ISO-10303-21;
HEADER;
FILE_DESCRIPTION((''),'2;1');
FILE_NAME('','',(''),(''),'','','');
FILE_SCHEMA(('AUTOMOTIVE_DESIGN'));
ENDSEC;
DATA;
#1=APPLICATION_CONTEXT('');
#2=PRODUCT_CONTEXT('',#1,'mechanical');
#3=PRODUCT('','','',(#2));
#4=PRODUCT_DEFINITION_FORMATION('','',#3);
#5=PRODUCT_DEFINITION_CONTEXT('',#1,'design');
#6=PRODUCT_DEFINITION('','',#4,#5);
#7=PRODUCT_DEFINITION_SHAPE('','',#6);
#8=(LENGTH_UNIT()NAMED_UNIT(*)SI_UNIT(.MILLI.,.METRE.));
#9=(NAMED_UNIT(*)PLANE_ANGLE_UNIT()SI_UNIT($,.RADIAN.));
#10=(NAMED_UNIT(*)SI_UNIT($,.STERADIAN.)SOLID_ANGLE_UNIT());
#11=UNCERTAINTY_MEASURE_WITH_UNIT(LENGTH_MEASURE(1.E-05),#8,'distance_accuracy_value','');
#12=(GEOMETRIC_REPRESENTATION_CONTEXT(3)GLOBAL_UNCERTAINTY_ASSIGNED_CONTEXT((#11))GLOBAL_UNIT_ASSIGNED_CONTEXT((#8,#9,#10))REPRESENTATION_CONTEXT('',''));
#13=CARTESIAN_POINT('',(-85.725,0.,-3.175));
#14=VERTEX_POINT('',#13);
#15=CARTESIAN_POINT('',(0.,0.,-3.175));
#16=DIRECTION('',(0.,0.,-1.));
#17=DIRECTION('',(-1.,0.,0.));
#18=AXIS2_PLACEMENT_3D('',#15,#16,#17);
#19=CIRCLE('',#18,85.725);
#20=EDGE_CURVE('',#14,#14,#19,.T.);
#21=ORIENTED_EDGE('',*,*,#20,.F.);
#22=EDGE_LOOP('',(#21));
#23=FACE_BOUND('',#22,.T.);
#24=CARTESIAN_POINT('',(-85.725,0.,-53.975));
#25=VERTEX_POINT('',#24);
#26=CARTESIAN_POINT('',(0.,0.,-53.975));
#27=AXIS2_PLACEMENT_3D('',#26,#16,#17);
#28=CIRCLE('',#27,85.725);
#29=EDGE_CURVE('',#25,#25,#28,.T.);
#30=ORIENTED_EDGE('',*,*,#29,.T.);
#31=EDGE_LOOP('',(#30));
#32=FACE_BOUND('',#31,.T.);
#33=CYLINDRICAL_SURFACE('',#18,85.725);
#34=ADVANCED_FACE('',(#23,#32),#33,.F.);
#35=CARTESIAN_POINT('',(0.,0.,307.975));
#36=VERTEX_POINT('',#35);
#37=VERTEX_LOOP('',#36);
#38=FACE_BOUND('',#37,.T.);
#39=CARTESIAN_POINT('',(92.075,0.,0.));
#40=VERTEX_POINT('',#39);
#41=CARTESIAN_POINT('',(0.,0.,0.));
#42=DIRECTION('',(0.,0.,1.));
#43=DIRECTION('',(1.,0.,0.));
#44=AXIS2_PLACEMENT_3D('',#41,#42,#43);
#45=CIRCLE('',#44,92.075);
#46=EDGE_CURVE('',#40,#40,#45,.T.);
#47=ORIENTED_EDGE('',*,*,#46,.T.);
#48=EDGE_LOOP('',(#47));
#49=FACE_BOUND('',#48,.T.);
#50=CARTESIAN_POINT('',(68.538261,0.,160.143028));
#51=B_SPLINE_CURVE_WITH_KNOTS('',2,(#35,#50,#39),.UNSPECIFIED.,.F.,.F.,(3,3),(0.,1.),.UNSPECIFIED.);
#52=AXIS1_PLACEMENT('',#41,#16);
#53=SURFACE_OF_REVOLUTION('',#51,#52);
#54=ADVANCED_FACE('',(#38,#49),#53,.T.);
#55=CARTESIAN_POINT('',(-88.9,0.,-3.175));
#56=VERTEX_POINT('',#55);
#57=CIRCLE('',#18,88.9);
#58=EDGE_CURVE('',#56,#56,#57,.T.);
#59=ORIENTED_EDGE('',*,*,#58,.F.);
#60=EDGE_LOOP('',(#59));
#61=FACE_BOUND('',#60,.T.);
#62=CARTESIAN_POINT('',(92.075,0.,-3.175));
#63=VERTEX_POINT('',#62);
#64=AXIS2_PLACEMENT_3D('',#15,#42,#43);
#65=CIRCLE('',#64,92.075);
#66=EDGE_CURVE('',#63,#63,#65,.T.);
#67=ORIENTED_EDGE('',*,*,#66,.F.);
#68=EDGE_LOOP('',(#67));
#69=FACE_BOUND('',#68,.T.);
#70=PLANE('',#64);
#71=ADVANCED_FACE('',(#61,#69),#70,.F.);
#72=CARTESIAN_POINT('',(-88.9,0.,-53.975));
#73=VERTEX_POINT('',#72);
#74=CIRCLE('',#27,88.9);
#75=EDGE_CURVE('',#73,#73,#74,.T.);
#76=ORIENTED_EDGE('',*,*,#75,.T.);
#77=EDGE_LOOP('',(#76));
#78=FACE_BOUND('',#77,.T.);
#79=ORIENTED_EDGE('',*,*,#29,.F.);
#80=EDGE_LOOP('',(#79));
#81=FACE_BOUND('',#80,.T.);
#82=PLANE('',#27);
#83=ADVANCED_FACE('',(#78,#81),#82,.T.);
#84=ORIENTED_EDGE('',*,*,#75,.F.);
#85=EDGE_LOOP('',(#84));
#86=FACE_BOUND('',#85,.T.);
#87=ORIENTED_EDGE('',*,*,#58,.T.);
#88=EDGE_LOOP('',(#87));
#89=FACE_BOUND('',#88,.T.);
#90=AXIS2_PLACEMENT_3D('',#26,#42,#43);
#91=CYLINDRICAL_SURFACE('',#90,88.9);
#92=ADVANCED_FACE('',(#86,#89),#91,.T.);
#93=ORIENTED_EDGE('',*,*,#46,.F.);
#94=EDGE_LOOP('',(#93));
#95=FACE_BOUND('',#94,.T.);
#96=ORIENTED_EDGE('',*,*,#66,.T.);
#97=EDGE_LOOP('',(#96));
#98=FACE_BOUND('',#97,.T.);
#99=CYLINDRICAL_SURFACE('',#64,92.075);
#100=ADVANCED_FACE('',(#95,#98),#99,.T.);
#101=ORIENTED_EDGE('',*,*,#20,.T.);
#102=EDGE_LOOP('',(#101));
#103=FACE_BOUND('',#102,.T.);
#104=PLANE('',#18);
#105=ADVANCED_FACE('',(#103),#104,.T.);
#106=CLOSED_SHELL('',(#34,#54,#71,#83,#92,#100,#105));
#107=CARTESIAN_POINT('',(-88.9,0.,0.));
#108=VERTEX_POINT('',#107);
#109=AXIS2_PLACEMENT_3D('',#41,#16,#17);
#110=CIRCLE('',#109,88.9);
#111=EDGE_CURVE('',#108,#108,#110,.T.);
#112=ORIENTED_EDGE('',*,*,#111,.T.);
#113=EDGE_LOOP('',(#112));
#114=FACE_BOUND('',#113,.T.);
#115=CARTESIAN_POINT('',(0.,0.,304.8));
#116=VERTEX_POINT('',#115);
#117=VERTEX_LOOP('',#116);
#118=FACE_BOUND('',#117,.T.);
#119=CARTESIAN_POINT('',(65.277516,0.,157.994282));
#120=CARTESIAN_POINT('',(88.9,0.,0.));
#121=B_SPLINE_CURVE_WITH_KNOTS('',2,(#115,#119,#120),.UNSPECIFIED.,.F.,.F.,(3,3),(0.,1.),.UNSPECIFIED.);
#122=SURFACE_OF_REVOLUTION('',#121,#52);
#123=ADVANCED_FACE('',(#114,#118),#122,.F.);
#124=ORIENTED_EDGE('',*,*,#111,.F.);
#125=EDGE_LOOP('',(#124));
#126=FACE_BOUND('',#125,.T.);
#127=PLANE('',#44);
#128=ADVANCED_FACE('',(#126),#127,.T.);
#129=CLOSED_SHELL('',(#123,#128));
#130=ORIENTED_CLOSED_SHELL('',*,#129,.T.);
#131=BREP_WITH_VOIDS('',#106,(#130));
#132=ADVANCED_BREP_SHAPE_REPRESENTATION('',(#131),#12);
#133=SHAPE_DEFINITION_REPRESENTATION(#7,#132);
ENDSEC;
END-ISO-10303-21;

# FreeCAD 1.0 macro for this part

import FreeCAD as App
import Part
import Sketcher
from FreeCAD import Vector
Q = App.Units.Quantity

doc = App.newDocument("Part")
params = doc.addObject("Spreadsheet::Sheet", "Params")
for row, (alias, value) in enumerate([
    ("sketch1_diameter", "7.25 in"),
    ("pad1_length", "0.125 in"),
    ("sketch2_diameter", "7 in"),
    ("pad2_length", "2 in"),
    ("sketch3_diameter", "6.75 in"),
    ("pocket1_length", "2 in"),
    ("revolution_angle", "360 deg"),
], start=1):
    params.set(f"A{row}", alias)
    params.set(f"B{row}", "=" + value)
    params.setAlias(f"B{row}", alias)

body = doc.addObject("PartDesign::Body", "Body")

# Sketch on XY plane
sketch1 = body.newObject("Sketcher::SketchObject", "Sketch")
sketch1.AttachmentSupport = (doc.getObject("XY_Plane"), [""])
sketch1.MapMode = "FlatFace"
sketch1.addGeometry(Part.Circle(Vector(0, 0, 0), Vector(0, 0, 1), 92), False)
sketch1.addConstraint([
    Sketcher.Constraint("Coincident", 0, 3, -1, 1),
    Sketcher.Constraint("Diameter", 0, Q("7.25 in")),
])
sketch1.setExpression("Constraints[1]", "Params.sketch1_diameter")
pad1 = body.newObject("PartDesign::Pad", "Pad")
pad1.Profile = sketch1
pad1.setExpression("Length", "Params.pad1_length")
pad1.Reversed = True

# Sketch on XY plane
sketch2 = body.newObject("Sketcher::SketchObject", "Sketch001")
sketch2.AttachmentSupport = (doc.getObject("XY_Plane"), [""])
sketch2.MapMode = "FlatFace"
sketch2.AttachmentOffset = App.Placement(Vector(0, 0, -0.125 * 25.4), App.Rotation())
sketch2.addGeometry(Part.Circle(Vector(0, 0, 0), Vector(0, 0, 1), 89), False)
sketch2.addConstraint([
    Sketcher.Constraint("Coincident", 0, 3, -1, 1),
    Sketcher.Constraint("Diameter", 0, Q("7 in")),
])
sketch2.setExpression("Constraints[1]", "Params.sketch2_diameter")
pad2 = body.newObject("PartDesign::Pad", "Pad001")
pad2.Profile = sketch2
pad2.setExpression("Length", "Params.pad2_length")
pad2.Reversed = True

# Sketch on XY plane
sketch3 = body.newObject("Sketcher::SketchObject", "Sketch002")
sketch3.AttachmentSupport = (doc.getObject("XY_Plane"), [""])
sketch3.MapMode = "FlatFace"
sketch3.AttachmentOffset = App.Placement(Vector(0, 0, -2.125 * 25.4), App.Rotation())
sketch3.addGeometry(Part.Circle(Vector(0, 0, 0), Vector(0, 0, 1), 86), False)
sketch3.addConstraint([
    Sketcher.Constraint("Coincident", 0, 3, -1, 1),
    Sketcher.Constraint("Diameter", 0, Q("6.75 in")),
])
sketch3.setExpression("Constraints[1]", "Params.sketch3_diameter")
pocket1 = body.newObject("PartDesign::Pocket", "Pocket")
pocket1.Profile = sketch3
pocket1.setExpression("Length", "Params.pocket1_length")
pocket1.Reversed = True

# Sketch on XZ plane
sketch4 = body.newObject("Sketcher::SketchObject", "Sketch003")
sketch4.AttachmentSupport = (doc.getObject("XZ_Plane"), [""])
sketch4.MapMode = "FlatFace"
sketch4.addGeometry([
    Part.BSplineCurve([Vector(0, 304.8, 0), Vector(65.277516, 157.994282, 0), Vector(88.9, 0, 0)], [3, 3], [0, 1], False, 2, [1, 1, 1], False),
    Part.LineSegment(Vector(0, 304.8, 0), Vector(0, 307.975, 0)),
    Part.BSplineCurve([Vector(0, 307.975, 0), Vector(68.538261, 160.143028, 0), Vector(92.075, 0, 0)], [3, 3], [0, 1], False, 2, [1, 1, 1], False),
    Part.LineSegment(Vector(92.075, 0, 0), Vector(88.9, 0, 0)),
], False)
sketch4.addConstraint([
    Sketcher.Constraint("Block", 0),
    Sketcher.Constraint("Block", 2),
    Sketcher.Constraint("Coincident", 0, 1, 1, 1),
    Sketcher.Constraint("Coincident", 1, 2, 2, 1),
    Sketcher.Constraint("Coincident", 2, 2, 3, 1),
    Sketcher.Constraint("Coincident", 3, 2, 0, 2),
])
revolution = body.newObject("PartDesign::Revolution", "Revolution")
revolution.Profile = sketch4
revolution.ReferenceAxis = (sketch4, ["V_Axis"])
revolution.setExpression("Angle", "Params.revolution_angle")

doc.recompute()
